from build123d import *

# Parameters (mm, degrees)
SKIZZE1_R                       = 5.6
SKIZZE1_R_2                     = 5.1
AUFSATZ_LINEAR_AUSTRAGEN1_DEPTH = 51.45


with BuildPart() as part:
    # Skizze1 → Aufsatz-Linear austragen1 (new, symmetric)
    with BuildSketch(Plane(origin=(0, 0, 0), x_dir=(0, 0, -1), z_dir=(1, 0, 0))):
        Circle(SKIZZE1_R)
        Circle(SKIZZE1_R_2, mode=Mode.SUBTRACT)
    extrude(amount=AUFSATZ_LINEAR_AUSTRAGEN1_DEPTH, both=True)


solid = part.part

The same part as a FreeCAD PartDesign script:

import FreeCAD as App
import Part
import Sketcher

V = App.Vector
Q = App.Units.Quantity

doc = App.newDocument("Part")
body = doc.addObject("PartDesign::Body", "Body")

# Sketch on YZ plane
sketch1 = body.newObject("Sketcher::SketchObject", "Sketch")
sketch1.AttachmentSupport = (doc.getObject("YZ_Plane"), [""])
sketch1.MapMode = "FlatFace"
sketch1.addGeometry([
    Part.Circle(V(0, 0, 0), V(0, 0, 1), 6),
    Part.Circle(V(0, 0, 0), V(0, 0, 1), 5),
], False)
sketch1.addConstraint([
    Sketcher.Constraint("Coincident", 0, 3, -1, 1),
    Sketcher.Constraint("Coincident", 1, 3, -1, 1),
    Sketcher.Constraint("Diameter", 0, Q("11.2 mm")),
    Sketcher.Constraint("Diameter", 1, Q("10.2 mm")),
])
pad1 = body.newObject("PartDesign::Pad", "Pad")
pad1.Profile = sketch1
pad1.Length = 102.9
pad1.Midplane = True

doc.recompute()
